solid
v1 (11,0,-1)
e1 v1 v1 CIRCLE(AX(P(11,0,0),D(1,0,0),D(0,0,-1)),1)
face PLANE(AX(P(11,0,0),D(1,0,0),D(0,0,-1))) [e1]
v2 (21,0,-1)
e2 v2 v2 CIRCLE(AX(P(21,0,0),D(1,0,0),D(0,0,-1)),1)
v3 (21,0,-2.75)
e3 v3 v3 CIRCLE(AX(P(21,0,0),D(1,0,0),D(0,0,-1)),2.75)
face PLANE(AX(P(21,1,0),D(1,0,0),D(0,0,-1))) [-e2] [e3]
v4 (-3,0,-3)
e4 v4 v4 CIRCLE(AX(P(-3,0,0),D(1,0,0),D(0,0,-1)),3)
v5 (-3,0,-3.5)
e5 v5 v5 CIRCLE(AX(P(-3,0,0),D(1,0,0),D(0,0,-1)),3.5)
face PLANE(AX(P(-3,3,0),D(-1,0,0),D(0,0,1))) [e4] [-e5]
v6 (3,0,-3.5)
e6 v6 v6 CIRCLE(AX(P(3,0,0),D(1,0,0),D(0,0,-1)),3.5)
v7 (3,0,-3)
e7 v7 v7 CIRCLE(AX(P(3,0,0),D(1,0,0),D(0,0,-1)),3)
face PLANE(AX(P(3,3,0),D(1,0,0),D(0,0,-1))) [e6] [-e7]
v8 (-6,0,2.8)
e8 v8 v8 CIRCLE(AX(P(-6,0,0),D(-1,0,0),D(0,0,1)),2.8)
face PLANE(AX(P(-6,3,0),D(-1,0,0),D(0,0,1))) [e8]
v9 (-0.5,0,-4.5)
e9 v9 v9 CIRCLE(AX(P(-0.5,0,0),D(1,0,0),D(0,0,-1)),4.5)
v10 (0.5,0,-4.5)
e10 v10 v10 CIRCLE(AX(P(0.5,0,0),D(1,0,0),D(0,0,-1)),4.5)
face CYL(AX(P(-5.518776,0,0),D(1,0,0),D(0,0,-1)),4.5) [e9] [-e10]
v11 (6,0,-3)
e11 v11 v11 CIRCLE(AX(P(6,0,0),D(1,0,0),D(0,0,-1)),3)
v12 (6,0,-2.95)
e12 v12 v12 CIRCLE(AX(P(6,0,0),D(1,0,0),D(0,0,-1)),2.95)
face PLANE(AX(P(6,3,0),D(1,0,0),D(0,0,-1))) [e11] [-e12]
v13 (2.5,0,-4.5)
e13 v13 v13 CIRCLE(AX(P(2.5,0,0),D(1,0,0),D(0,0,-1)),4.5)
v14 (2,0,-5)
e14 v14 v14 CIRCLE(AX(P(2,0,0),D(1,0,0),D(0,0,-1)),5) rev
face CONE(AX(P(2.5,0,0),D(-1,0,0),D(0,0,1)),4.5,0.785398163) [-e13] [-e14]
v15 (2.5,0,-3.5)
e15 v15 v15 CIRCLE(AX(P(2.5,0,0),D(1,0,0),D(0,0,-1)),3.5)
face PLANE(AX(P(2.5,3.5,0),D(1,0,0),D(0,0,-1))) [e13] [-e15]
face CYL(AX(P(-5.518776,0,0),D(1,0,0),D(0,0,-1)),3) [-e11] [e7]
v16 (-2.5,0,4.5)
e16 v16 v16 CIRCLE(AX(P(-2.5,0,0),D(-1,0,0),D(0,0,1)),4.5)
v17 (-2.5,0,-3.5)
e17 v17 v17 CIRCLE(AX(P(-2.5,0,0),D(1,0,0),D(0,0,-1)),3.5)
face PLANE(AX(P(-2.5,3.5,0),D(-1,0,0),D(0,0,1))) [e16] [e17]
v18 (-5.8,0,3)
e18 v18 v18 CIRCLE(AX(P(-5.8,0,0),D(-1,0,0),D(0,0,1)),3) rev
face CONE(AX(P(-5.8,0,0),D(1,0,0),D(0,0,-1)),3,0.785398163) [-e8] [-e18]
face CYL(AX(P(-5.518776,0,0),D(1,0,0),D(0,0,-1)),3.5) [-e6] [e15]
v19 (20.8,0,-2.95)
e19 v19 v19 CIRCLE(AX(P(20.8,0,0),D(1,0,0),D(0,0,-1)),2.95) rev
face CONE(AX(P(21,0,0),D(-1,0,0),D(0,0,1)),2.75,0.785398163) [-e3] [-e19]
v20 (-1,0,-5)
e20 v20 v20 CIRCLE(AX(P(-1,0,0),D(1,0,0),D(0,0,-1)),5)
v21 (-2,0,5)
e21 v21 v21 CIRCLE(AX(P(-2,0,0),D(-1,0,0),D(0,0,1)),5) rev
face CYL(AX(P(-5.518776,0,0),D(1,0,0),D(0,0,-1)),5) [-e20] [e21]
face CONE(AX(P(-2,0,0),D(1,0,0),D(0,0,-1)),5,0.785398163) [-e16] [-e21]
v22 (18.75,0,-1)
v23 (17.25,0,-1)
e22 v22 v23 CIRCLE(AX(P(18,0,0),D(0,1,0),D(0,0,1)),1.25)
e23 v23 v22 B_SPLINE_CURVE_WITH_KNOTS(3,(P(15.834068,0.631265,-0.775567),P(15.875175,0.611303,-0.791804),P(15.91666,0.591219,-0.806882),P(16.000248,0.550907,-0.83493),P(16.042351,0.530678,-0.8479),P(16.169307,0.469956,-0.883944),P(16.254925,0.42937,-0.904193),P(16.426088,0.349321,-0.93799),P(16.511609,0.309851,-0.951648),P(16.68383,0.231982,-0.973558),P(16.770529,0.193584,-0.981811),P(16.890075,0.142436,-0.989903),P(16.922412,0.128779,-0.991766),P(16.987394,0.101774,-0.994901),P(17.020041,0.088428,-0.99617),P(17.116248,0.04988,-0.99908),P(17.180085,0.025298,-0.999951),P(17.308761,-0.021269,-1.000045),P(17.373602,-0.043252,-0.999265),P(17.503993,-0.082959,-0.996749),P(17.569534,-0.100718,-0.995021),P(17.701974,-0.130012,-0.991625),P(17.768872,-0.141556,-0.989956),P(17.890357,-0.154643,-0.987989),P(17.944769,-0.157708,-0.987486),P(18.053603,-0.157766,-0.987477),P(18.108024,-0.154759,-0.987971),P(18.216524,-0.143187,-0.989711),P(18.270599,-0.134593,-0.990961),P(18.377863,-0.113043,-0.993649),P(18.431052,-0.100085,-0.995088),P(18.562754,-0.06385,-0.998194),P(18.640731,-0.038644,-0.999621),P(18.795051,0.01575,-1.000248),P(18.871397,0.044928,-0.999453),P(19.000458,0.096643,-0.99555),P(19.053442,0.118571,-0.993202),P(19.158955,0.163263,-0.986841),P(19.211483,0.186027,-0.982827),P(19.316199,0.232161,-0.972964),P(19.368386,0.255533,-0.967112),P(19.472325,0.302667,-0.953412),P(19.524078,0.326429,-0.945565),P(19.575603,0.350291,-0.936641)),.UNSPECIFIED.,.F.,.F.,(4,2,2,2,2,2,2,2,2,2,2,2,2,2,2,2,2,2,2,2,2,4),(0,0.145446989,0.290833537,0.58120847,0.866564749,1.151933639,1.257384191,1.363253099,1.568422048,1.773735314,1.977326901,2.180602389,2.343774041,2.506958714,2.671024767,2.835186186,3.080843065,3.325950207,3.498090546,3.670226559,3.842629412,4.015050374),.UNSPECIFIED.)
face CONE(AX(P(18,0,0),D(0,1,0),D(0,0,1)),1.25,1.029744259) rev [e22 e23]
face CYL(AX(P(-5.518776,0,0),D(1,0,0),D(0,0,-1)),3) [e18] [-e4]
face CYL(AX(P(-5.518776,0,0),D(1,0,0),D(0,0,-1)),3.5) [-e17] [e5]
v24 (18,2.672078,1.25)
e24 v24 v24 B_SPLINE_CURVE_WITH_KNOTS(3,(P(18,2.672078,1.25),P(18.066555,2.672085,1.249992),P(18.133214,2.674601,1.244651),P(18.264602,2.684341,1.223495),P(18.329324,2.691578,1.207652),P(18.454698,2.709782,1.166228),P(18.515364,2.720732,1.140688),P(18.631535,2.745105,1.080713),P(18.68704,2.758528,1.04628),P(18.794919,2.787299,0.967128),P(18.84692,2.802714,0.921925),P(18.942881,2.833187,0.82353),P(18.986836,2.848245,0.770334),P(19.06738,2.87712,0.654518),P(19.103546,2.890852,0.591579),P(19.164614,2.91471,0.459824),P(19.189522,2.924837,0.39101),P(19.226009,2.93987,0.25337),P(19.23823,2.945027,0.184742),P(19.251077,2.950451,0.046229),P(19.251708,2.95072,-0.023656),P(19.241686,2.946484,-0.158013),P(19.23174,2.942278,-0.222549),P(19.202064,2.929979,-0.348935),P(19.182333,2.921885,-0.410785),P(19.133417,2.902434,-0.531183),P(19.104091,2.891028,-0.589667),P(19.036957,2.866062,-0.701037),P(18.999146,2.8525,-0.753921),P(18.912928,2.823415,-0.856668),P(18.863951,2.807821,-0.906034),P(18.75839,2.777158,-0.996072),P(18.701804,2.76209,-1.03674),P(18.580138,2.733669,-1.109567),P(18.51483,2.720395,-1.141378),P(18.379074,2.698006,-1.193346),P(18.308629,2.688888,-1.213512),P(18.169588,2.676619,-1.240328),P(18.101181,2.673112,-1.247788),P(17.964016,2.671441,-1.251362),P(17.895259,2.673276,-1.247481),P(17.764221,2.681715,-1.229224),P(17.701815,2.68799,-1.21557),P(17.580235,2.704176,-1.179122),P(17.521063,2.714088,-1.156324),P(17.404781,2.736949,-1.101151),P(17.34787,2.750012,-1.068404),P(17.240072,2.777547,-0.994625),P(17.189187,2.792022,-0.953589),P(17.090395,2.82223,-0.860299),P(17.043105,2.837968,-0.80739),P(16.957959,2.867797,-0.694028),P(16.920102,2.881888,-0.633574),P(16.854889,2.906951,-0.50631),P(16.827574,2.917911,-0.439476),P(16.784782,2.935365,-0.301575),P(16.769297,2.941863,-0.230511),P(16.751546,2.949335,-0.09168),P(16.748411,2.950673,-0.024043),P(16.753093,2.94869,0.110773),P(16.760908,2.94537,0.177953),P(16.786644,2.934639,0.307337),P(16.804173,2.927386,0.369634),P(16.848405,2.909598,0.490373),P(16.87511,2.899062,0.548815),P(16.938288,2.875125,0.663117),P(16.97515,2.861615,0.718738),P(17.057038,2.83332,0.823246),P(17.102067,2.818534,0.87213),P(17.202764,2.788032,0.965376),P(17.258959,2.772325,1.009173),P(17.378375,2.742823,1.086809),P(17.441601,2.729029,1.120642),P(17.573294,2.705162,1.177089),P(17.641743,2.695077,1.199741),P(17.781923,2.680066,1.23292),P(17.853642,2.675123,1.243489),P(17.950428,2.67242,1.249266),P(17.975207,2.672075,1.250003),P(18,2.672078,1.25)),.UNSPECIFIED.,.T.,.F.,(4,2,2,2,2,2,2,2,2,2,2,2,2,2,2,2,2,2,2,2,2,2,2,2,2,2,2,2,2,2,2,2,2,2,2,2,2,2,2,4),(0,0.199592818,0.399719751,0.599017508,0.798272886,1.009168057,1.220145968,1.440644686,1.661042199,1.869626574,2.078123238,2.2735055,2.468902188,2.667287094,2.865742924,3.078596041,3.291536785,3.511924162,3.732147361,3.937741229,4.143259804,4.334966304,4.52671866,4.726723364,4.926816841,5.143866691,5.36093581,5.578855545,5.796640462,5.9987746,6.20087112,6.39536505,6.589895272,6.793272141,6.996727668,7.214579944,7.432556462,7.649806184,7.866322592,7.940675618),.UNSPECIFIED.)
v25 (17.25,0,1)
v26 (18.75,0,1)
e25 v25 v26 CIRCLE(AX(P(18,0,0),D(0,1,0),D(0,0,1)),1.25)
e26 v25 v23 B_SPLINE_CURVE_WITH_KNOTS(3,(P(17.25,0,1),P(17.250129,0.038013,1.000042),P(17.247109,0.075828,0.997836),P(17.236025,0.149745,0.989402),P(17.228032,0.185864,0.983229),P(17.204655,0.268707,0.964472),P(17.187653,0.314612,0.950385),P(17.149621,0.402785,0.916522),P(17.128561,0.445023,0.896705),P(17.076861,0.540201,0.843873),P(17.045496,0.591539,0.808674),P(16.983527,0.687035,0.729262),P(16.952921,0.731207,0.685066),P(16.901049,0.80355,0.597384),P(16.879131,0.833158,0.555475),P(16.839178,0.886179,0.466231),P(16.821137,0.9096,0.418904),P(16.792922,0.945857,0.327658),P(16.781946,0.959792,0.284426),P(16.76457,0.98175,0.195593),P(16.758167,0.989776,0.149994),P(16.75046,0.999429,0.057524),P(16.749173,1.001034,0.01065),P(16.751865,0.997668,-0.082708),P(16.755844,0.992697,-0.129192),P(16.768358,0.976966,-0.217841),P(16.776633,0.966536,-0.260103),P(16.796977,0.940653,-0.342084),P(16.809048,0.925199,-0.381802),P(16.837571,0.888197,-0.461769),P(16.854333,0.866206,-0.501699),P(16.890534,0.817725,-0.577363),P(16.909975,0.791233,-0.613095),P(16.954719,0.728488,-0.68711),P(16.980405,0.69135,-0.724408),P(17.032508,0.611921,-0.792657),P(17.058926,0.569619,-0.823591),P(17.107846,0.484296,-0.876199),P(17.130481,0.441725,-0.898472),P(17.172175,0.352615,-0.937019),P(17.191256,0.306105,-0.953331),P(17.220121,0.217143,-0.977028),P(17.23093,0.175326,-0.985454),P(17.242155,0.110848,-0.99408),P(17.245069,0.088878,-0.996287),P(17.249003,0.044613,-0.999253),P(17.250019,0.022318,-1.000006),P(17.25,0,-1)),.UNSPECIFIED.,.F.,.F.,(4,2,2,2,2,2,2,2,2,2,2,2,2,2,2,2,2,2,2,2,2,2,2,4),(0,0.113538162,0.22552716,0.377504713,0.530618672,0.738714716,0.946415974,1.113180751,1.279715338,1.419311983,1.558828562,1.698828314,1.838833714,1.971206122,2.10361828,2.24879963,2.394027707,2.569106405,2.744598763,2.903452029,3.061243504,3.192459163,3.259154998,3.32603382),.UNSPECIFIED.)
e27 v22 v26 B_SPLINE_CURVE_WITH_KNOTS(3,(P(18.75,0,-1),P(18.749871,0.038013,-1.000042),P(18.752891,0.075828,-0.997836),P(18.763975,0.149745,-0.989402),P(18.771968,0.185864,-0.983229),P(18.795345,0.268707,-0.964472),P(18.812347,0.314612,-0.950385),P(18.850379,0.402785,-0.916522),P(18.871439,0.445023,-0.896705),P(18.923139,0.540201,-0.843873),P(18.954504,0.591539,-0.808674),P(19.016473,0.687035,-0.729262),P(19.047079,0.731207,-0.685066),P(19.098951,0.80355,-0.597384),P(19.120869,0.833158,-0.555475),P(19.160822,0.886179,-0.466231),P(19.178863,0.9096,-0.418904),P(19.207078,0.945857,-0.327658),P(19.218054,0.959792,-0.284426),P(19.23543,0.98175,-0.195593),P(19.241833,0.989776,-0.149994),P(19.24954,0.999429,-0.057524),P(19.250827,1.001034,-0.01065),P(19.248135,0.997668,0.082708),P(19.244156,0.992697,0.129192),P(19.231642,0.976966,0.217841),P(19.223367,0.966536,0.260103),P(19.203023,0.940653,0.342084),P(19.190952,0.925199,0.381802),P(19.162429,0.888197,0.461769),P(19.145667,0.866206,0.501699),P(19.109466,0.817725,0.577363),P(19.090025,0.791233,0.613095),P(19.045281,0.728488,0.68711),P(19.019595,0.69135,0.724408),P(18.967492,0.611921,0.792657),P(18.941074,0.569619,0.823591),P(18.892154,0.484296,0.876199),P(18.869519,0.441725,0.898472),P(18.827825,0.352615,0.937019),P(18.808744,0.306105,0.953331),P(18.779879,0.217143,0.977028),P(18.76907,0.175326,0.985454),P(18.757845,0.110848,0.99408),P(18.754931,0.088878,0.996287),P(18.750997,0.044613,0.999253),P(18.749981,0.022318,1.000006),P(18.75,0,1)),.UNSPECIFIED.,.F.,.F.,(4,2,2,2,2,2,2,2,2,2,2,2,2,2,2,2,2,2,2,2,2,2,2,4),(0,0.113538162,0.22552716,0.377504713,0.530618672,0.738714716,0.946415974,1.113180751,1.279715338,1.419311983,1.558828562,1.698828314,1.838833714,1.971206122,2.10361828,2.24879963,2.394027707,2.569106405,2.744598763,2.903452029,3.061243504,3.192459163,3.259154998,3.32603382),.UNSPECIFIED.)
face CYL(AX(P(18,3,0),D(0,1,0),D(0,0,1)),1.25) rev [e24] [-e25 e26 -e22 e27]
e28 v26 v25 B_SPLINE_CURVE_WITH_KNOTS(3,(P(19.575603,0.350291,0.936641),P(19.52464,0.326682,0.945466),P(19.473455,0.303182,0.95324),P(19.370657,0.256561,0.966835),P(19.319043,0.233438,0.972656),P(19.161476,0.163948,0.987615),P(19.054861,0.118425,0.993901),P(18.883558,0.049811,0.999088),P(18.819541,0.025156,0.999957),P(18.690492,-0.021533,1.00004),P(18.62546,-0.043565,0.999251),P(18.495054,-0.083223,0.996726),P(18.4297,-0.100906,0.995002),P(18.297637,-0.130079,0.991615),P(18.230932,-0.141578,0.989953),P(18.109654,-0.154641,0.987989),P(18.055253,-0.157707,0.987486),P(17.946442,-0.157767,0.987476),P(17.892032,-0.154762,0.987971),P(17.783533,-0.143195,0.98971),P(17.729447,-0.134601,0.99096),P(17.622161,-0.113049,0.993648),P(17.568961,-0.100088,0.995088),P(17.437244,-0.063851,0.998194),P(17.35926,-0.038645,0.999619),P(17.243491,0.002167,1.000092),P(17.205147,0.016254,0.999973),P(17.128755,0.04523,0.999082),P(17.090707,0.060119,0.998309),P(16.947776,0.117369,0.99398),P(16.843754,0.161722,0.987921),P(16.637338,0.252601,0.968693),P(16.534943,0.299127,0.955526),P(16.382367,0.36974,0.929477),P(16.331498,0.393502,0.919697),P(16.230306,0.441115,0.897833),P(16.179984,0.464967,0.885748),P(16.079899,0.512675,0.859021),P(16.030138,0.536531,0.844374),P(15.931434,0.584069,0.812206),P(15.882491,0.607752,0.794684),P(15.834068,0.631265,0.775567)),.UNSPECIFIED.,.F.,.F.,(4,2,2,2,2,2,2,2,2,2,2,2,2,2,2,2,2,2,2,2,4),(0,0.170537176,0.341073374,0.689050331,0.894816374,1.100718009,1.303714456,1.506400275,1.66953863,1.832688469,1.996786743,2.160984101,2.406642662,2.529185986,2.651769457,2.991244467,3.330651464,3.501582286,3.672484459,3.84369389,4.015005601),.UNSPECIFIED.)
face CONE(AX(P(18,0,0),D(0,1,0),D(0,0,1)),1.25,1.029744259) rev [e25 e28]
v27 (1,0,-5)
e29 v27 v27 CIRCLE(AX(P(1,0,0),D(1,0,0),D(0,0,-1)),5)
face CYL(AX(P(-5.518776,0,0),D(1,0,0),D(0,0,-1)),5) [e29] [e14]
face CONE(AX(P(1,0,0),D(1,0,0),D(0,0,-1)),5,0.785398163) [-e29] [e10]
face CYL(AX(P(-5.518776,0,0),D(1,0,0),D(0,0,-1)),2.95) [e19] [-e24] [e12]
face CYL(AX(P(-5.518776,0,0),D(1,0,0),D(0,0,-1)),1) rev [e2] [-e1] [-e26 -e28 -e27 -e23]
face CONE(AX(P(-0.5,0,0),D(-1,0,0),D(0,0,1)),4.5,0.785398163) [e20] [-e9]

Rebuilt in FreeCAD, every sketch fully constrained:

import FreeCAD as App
import Part
import Sketcher
Q = App.Units.Quantity


def edges_at(feature, points):
    """Names of the edges that pass closest to the given points."""
    edges = feature.Shape.Edges
    near = lambda p: min(range(len(edges)), key=lambda i: edges[i].distToShape(Part.Vertex(*p))[0])
    return sorted({f"Edge{near(p) + 1}" for p in points})

doc = App.newDocument("Part")
body = doc.addObject("PartDesign::Body", "Body")

sketch1 = body.newObject("Sketcher::SketchObject", "Sketch")
sketch1.AttachmentSupport = (doc.getObject("XY_Plane"), [""])
sketch1.MapMode = "FlatFace"
sketch1.addGeometry([
    Part.LineSegment(App.Vector(-3, 3, 0), App.Vector(-6, 3, 0)),
    Part.LineSegment(App.Vector(-6, 3, 0), App.Vector(-6, 0, 0)),
    Part.LineSegment(App.Vector(-6, 0, 0), App.Vector(11, 0, 0)),
    Part.LineSegment(App.Vector(11, 0, 0), App.Vector(11, 1, 0)),
    Part.LineSegment(App.Vector(11, 1, 0), App.Vector(21, 1, 0)),
    Part.LineSegment(App.Vector(21, 1, 0), App.Vector(21, 2.95, 0)),
    Part.LineSegment(App.Vector(21, 2.95, 0), App.Vector(6, 2.95, 0)),
    Part.LineSegment(App.Vector(6, 2.95, 0), App.Vector(6, 3, 0)),
    Part.LineSegment(App.Vector(6, 3, 0), App.Vector(3, 3, 0)),
    Part.LineSegment(App.Vector(3, 3, 0), App.Vector(3, 3.5, 0)),
    Part.LineSegment(App.Vector(3, 3.5, 0), App.Vector(2.5, 3.5, 0)),
    Part.LineSegment(App.Vector(2.5, 3.5, 0), App.Vector(2.5, 5, 0)),
    Part.LineSegment(App.Vector(2.5, 5, 0), App.Vector(1, 5, 0)),
    Part.LineSegment(App.Vector(1, 5, 0), App.Vector(0.5, 4.5, 0)),
    Part.LineSegment(App.Vector(0.5, 4.5, 0), App.Vector(-0.5, 4.5, 0)),
    Part.LineSegment(App.Vector(-0.5, 4.5, 0), App.Vector(-1, 5, 0)),
    Part.LineSegment(App.Vector(-1, 5, 0), App.Vector(-2.5, 5, 0)),
    Part.LineSegment(App.Vector(-2.5, 5, 0), App.Vector(-2.5, 3.5, 0)),
    Part.LineSegment(App.Vector(-2.5, 3.5, 0), App.Vector(-3, 3.5, 0)),
    Part.LineSegment(App.Vector(-3, 3.5, 0), App.Vector(-3, 3, 0)),
], False)
sketch1.addConstraint([
    Sketcher.Constraint("Coincident", 0, 2, 1, 1),
    Sketcher.Constraint("Coincident", 1, 2, 2, 1),
    Sketcher.Constraint("Coincident", 2, 2, 3, 1),
    Sketcher.Constraint("Coincident", 3, 2, 4, 1),
    Sketcher.Constraint("Coincident", 4, 2, 5, 1),
    Sketcher.Constraint("Coincident", 5, 2, 6, 1),
    Sketcher.Constraint("Coincident", 6, 2, 7, 1),
    Sketcher.Constraint("Coincident", 7, 2, 8, 1),
    Sketcher.Constraint("Coincident", 8, 2, 9, 1),
    Sketcher.Constraint("Coincident", 9, 2, 10, 1),
    Sketcher.Constraint("Coincident", 10, 2, 11, 1),
    Sketcher.Constraint("Coincident", 11, 2, 12, 1),
    Sketcher.Constraint("Coincident", 12, 2, 13, 1),
    Sketcher.Constraint("Coincident", 13, 2, 14, 1),
    Sketcher.Constraint("Coincident", 14, 2, 15, 1),
    Sketcher.Constraint("Coincident", 15, 2, 16, 1),
    Sketcher.Constraint("Coincident", 16, 2, 17, 1),
    Sketcher.Constraint("Coincident", 17, 2, 18, 1),
    Sketcher.Constraint("Coincident", 18, 2, 19, 1),
    Sketcher.Constraint("Coincident", 19, 2, 0, 1),
    Sketcher.Constraint("Horizontal", 0),
    Sketcher.Constraint("Vertical", 1),
    Sketcher.Constraint("Horizontal", 2),
    Sketcher.Constraint("Vertical", 3),
    Sketcher.Constraint("Horizontal", 4),
    Sketcher.Constraint("Vertical", 5),
    Sketcher.Constraint("Horizontal", 6),
    Sketcher.Constraint("Vertical", 7),
    Sketcher.Constraint("Horizontal", 8),
    Sketcher.Constraint("Vertical", 9),
    Sketcher.Constraint("Horizontal", 10),
    Sketcher.Constraint("Vertical", 11),
    Sketcher.Constraint("Horizontal", 12),
    Sketcher.Constraint("Horizontal", 14),
    Sketcher.Constraint("Horizontal", 16),
    Sketcher.Constraint("Vertical", 17),
    Sketcher.Constraint("Horizontal", 18),
    Sketcher.Constraint("Vertical", 19),
    Sketcher.Constraint("Symmetric", 0, 2, 7, 2, -2),
    Sketcher.Constraint("Symmetric", 12, 2, 15, 2, -2),
    Sketcher.Constraint("Symmetric", 10, 2, 17, 2, -2),
    Sketcher.Constraint("PointOnObject", 1, 2, -1),
    Sketcher.Constraint("Perpendicular", 13, 15),
    Sketcher.Constraint("Equal", 0, 8),
    Sketcher.Constraint("Equal", 8, 1),
    Sketcher.Constraint("Equal", 14, 3),
    Sketcher.Constraint("Equal", 18, 9),
    Sketcher.Constraint("Equal", 16, 11),
    Sketcher.Constraint("Equal", 13, 15),
    Sketcher.Constraint("DistanceX", 0, 2, 0, 1, Q("3 mm")),
    Sketcher.Constraint("DistanceX", 2, 1, 2, 2, Q("17 mm")),
    Sketcher.Constraint("DistanceX", 4, 1, 4, 2, Q("10 mm")),
    Sketcher.Constraint("DistanceX", 6, 2, 6, 1, Q("15 mm")),
    Sketcher.Constraint("DistanceX", 14, 2, 14, 1, Q("1 mm")),
    Sketcher.Constraint("DistanceX", 10, 2, 10, 1, Q("0.5 mm")),
    Sketcher.Constraint("DistanceX", 12, 2, 12, 1, Q("1.5 mm")),
    Sketcher.Constraint("DistanceY", 5, 1, 5, 2, Q("1.95 mm")),
])
revolution = body.newObject("PartDesign::Revolution", "Revolution")
revolution.Profile = sketch1
revolution.ReferenceAxis = (sketch1, ["H_Axis"])
revolution.Angle = 360
doc.recompute()

chamfer = body.newObject("PartDesign::Chamfer", "Chamfer")
chamfer.Base = (revolution, edges_at(revolution, [(2.5, -5, 0), (-2.5, -5, 0)]))
chamfer.Size = 0.5

sketch2 = body.newObject("Sketcher::SketchObject", "Sketch001")
sketch2.AttachmentSupport = (doc.getObject("XZ_Plane"), [""])
sketch2.MapMode = "FlatFace"
sketch2.AttachmentOffset = App.Placement(App.Vector(0, 0, -3), App.Rotation())
sketch2.addGeometry(Part.Circle(App.Vector(18, 0, 0), App.Vector(0, 0, 1), 1.2), False)
sketch2.addConstraint([
    Sketcher.Constraint("PointOnObject", 0, 3, -1),
    Sketcher.Constraint("Diameter", 0, Q("2.5 mm")),
    Sketcher.Constraint("DistanceX", -1, 1, 0, 3, Q("18 mm")),
])
doc.recompute()
hole = body.newObject("PartDesign::Hole", "Hole")
hole.Profile = sketch2
hole.ThreadType = "None"
hole.Diameter = 2.5
hole.DepthType = "Dimension"
hole.Depth = 3
hole.DrillPoint = "Angled"
hole.DrillPointAngle = 118
hole.Reversed = True
doc.recompute()

chamfer2 = body.newObject("PartDesign::Chamfer", "Chamfer001")
chamfer2.Base = (hole, edges_at(hole, [(-6, -3, 0), (21, -2.95, 0)]))
chamfer2.Size = 0.2

doc.recompute()
